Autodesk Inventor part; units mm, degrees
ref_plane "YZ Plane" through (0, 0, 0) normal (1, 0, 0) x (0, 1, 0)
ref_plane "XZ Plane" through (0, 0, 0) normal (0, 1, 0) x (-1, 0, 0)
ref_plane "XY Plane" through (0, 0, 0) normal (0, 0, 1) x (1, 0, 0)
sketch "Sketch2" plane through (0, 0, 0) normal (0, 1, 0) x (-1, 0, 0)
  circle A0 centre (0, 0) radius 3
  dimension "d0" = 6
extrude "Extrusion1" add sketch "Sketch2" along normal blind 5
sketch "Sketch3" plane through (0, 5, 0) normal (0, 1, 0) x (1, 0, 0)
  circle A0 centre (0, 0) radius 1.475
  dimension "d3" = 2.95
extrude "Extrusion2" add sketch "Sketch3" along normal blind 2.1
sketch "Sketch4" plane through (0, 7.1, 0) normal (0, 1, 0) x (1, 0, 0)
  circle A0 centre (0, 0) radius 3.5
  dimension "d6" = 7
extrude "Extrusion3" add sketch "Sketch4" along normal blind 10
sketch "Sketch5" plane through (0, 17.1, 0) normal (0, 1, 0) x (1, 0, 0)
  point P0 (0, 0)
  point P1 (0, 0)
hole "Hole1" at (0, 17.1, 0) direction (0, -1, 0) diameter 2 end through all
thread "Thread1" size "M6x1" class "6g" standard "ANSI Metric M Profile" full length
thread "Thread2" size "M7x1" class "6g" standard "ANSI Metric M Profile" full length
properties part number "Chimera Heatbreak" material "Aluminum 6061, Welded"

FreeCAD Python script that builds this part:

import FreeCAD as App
import Part
import Sketcher

V = App.Vector
Q = App.Units.Quantity

doc = App.newDocument("Part")
body = doc.addObject("PartDesign::Body", "Body")

# Sketch on XZ plane
sketch1 = body.newObject("Sketcher::SketchObject", "Sketch")
sketch1.AttachmentSupport = (doc.getObject("XZ_Plane"), [""])
sketch1.MapMode = "FlatFace"
sketch1.addGeometry(Part.Circle(V(0, 0, 0), V(0, 0, 1), 3), False)
sketch1.addConstraint(Sketcher.Constraint("Coincident", 0, 3, -1, 1))
sketch1.addConstraint(Sketcher.Constraint("Diameter", 0, Q("6 mm")))
pad1 = body.newObject("PartDesign::Pad", "Pad")
pad1.Profile = sketch1
pad1.Length = 5
pad1.Reversed = True

# Sketch on XZ plane
sketch2 = body.newObject("Sketcher::SketchObject", "Sketch001")
sketch2.AttachmentSupport = (doc.getObject("XZ_Plane"), [""])
sketch2.MapMode = "FlatFace"
sketch2.AttachmentOffset = App.Placement(V(0, 0, -5), App.Rotation())
sketch2.addGeometry(Part.Circle(V(0, 0, 0), V(0, 0, 1), 1.475), False)
sketch2.addConstraint(Sketcher.Constraint("Coincident", 0, 3, -1, 1))
sketch2.addConstraint(Sketcher.Constraint("Diameter", 0, Q("2.95 mm")))
pad2 = body.newObject("PartDesign::Pad", "Pad001")
pad2.Profile = sketch2
pad2.Length = 2.1
pad2.Reversed = True

# Sketch on XZ plane
sketch3 = body.newObject("Sketcher::SketchObject", "Sketch002")
sketch3.AttachmentSupport = (doc.getObject("XZ_Plane"), [""])
sketch3.MapMode = "FlatFace"
sketch3.AttachmentOffset = App.Placement(V(0, 0, -7.1), App.Rotation())
sketch3.addGeometry(Part.Circle(V(0, 0, 0), V(0, 0, 1), 3.5), False)
sketch3.addConstraint(Sketcher.Constraint("Coincident", 0, 3, -1, 1))
sketch3.addConstraint(Sketcher.Constraint("Diameter", 0, Q("7 mm")))
pad3 = body.newObject("PartDesign::Pad", "Pad002")
pad3.Profile = sketch3
pad3.Length = 10
pad3.Reversed = True

# Sketch on XZ plane
sketch4 = body.newObject("Sketcher::SketchObject", "Sketch003")
sketch4.AttachmentSupport = (doc.getObject("XZ_Plane"), [""])
sketch4.MapMode = "FlatFace"
sketch4.AttachmentOffset = App.Placement(V(0, 0, -17.1), App.Rotation())
sketch4.addGeometry(Part.Circle(V(0, 0, 0), V(0, 0, 1), 1), False)
sketch4.addConstraint(Sketcher.Constraint("Coincident", 0, 3, -1, 1))
sketch4.addConstraint(Sketcher.Constraint("Diameter", 0, Q("2 mm")))
doc.recompute()
hole = body.newObject("PartDesign::Hole", "Hole")
hole.Profile = sketch4
hole.ThreadType = "None"
hole.Diameter = 2
hole.DepthType = "ThroughAll"
hole.Reversed = True

doc.recompute()
